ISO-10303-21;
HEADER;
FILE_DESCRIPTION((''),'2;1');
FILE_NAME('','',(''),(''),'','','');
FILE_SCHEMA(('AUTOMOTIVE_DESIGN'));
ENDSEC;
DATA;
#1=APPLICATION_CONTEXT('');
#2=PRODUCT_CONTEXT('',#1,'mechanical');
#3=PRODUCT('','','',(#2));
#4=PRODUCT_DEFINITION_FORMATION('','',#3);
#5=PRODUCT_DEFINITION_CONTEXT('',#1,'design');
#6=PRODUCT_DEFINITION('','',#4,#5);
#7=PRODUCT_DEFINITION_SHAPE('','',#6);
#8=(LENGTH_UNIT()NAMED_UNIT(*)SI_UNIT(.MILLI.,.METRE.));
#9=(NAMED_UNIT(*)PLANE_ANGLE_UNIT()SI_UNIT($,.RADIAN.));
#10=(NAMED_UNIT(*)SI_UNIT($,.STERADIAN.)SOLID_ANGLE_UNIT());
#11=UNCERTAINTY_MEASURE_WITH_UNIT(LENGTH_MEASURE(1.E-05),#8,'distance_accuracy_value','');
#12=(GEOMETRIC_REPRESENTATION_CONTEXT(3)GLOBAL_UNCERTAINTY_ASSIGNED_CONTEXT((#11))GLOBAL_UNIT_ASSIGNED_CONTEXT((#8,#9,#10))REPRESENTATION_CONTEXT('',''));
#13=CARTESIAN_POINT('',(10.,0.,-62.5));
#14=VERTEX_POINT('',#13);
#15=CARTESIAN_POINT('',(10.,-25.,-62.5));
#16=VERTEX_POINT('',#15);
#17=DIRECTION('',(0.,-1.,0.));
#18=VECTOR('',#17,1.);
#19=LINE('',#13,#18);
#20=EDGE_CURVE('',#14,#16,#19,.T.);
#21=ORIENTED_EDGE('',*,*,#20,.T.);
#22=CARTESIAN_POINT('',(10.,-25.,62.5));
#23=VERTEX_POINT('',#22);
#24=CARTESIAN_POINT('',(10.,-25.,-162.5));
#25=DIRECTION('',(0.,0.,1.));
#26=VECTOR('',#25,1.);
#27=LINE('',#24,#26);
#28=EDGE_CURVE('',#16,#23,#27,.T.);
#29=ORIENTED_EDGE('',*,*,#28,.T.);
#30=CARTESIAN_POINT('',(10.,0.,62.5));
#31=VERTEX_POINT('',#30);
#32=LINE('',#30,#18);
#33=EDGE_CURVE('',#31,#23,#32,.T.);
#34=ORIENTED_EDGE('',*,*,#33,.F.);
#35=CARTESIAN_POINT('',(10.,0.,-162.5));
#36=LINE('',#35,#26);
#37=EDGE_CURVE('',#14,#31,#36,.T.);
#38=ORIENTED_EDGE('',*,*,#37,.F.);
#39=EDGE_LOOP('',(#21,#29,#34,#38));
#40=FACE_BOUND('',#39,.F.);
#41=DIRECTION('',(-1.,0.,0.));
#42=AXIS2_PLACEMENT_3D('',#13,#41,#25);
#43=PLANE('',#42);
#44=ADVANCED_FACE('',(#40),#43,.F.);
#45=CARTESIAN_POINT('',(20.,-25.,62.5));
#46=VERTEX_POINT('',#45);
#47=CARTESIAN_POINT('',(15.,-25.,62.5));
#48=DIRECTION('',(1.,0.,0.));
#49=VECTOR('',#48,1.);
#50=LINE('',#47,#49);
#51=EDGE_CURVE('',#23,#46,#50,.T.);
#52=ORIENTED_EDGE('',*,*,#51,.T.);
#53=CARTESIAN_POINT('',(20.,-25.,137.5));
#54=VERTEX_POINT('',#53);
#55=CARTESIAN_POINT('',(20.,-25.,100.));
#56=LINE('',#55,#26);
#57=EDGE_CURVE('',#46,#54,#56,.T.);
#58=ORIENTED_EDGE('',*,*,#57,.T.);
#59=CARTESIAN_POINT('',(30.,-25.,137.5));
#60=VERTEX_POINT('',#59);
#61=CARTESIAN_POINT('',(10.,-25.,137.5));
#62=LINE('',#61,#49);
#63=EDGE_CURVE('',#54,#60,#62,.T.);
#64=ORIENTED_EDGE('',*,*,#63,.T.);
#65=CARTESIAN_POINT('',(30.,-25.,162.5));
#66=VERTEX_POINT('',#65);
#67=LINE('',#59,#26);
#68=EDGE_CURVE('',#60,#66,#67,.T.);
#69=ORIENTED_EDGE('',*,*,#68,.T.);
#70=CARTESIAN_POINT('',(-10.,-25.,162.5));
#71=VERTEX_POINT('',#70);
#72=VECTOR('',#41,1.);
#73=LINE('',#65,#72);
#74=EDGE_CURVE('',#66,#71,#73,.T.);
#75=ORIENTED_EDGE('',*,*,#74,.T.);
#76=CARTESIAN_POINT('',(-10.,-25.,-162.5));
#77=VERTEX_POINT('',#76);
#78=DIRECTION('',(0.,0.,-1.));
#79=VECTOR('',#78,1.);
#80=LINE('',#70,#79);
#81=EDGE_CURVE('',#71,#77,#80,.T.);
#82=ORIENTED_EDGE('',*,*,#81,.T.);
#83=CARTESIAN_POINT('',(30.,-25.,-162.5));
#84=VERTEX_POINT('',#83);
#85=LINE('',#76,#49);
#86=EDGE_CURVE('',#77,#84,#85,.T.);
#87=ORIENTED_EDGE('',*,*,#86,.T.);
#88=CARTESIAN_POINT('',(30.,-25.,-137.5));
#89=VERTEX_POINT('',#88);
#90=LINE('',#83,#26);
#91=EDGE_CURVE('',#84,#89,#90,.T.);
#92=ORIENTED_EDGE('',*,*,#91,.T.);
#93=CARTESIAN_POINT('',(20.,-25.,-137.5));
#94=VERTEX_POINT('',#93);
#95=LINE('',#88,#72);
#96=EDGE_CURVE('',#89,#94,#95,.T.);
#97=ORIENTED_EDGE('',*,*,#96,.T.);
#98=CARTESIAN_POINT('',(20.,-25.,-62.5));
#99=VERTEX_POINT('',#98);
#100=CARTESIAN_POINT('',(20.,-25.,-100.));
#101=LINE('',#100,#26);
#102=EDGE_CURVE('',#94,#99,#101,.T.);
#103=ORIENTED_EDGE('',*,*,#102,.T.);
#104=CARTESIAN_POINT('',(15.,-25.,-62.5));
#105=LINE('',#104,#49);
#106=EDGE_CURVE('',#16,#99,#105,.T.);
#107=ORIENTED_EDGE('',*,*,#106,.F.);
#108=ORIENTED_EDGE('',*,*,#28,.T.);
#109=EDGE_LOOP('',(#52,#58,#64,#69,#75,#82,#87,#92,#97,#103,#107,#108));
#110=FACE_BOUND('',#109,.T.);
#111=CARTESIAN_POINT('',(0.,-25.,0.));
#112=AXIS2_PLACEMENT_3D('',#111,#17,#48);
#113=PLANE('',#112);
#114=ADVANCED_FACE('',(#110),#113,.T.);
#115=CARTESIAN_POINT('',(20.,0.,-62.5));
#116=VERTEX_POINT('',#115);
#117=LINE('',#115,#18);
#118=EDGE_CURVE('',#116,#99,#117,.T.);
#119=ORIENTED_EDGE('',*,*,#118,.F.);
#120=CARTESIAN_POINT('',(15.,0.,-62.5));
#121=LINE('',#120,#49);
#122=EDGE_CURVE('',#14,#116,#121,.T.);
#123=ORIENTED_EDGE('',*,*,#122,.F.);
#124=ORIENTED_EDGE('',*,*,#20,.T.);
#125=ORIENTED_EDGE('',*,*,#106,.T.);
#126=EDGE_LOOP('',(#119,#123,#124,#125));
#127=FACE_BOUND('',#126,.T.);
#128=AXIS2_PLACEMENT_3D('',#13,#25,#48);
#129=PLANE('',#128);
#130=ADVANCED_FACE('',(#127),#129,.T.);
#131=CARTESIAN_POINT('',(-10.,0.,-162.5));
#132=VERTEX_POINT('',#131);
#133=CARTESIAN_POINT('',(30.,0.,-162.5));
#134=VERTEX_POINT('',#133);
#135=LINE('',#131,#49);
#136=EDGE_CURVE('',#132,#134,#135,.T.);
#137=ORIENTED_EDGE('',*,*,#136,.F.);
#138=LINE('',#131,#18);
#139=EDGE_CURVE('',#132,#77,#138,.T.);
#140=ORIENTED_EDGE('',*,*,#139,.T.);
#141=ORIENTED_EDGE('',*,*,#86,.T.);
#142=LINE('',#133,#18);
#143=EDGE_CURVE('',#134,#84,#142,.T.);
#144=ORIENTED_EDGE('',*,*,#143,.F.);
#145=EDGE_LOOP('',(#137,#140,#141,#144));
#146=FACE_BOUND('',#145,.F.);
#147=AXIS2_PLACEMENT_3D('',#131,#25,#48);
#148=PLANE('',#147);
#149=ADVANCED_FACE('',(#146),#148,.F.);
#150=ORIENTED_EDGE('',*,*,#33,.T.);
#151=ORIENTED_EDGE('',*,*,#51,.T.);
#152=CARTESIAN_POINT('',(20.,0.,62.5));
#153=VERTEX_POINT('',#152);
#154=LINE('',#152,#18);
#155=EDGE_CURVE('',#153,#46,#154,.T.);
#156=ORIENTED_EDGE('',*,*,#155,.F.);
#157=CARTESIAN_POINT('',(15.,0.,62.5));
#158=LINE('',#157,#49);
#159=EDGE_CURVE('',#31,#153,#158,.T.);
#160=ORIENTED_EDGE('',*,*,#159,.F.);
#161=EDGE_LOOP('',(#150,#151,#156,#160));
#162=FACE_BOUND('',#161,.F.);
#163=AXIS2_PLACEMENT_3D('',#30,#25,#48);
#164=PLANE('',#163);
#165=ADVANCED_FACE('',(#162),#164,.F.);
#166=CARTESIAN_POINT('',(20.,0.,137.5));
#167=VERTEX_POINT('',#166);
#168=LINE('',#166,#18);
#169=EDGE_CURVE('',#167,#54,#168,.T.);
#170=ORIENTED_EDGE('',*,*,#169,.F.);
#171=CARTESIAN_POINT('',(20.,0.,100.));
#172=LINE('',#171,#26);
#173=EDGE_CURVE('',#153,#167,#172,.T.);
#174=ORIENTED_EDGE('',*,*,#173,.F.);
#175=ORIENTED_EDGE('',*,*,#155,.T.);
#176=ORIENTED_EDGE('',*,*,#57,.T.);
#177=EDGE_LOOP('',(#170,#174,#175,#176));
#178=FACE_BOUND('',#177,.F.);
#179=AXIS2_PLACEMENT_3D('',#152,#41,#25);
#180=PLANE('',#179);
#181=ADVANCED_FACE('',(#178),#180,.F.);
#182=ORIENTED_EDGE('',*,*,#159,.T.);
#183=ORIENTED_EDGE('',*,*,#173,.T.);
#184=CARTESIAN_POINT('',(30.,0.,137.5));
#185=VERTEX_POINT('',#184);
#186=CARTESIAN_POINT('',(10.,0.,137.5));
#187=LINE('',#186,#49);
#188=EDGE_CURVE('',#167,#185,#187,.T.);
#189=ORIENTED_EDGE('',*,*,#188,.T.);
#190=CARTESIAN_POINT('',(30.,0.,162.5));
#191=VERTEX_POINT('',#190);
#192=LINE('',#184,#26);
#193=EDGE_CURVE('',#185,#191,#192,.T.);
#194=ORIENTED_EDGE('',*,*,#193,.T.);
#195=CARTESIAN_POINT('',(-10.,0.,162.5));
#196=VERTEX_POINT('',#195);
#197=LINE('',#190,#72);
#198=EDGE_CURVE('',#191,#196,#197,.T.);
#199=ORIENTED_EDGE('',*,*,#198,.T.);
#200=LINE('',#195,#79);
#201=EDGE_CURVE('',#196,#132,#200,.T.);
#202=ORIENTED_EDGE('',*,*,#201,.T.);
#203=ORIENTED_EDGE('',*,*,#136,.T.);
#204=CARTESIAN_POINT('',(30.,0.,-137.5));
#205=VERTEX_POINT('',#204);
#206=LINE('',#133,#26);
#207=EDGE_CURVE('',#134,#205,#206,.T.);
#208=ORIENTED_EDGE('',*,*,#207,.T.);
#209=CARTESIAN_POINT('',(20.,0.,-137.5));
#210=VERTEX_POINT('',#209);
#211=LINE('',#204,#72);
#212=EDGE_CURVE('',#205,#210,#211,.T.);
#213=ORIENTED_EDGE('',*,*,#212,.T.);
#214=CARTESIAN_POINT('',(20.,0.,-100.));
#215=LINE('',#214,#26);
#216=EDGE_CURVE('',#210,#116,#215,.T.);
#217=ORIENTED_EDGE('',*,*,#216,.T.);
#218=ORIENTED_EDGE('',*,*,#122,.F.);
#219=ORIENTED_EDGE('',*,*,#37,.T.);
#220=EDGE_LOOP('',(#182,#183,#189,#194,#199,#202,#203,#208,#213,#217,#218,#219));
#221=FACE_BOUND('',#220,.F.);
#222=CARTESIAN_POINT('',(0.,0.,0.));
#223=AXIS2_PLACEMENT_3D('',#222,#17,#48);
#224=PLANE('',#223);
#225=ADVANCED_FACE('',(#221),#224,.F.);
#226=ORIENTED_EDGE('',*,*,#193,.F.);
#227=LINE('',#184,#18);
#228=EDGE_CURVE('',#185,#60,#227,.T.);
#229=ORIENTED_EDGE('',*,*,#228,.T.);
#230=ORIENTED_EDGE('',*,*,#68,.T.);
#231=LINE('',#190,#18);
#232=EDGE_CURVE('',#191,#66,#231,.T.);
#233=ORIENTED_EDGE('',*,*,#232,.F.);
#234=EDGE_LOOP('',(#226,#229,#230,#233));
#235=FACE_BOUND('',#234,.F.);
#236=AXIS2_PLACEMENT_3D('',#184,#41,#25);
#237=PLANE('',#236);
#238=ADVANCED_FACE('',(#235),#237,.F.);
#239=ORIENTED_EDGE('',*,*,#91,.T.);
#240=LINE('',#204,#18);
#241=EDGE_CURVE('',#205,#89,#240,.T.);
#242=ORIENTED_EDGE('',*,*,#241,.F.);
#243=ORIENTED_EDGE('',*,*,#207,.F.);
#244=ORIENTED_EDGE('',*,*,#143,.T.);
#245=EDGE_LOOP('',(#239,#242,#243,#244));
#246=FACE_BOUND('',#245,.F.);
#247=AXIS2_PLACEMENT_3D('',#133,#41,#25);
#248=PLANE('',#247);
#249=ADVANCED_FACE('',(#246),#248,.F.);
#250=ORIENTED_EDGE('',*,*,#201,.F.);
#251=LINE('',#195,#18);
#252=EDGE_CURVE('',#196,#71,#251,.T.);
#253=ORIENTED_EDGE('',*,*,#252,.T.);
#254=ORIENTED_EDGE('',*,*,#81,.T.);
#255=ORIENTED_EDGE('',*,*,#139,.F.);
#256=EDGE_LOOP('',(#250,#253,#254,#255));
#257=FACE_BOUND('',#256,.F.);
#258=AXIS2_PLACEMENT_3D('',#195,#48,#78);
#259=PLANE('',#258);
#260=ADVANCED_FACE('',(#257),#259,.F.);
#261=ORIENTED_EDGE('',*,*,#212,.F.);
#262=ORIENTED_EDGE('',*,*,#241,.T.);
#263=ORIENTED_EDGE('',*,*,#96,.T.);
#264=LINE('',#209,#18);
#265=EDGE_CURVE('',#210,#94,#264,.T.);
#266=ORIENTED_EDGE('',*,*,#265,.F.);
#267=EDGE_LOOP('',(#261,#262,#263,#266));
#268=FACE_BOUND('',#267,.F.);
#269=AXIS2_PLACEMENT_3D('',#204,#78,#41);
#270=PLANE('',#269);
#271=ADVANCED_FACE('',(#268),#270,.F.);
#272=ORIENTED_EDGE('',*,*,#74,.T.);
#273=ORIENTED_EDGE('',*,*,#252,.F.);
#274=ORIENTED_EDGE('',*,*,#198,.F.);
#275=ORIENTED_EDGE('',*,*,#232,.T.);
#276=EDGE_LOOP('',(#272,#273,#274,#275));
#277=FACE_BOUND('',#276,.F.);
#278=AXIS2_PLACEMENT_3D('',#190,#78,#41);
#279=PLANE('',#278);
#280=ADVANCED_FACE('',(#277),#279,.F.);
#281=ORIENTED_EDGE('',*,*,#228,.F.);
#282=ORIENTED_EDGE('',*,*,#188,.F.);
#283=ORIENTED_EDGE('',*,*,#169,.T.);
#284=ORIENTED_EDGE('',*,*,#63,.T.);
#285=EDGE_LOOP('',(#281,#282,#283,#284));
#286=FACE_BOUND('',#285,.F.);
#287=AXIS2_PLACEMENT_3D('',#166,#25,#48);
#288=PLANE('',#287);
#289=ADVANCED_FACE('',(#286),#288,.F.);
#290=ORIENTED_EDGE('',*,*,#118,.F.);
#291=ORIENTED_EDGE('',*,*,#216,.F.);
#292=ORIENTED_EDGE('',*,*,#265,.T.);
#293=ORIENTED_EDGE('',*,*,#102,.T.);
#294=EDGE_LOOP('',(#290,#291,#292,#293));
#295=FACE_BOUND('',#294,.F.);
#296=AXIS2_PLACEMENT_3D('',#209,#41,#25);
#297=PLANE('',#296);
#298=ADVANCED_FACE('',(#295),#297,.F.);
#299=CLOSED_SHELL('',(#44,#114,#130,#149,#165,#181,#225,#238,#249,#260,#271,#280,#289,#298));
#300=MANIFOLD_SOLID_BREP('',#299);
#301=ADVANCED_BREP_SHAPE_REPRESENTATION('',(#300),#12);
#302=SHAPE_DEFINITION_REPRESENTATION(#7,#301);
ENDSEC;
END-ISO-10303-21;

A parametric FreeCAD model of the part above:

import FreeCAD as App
import Part
import Sketcher
from FreeCAD import Vector
Q = App.Units.Quantity


def add_polygon(sketch, points):
    """Adds a closed chain of lines whose ends are joined by coincident constraints."""
    first, n = sketch.GeometryCount, len(points)
    for a, b in zip(points, points[1:] + points[:1]):
        sketch.addGeometry(Part.LineSegment(App.Vector(*a, 0), App.Vector(*b, 0)), False)
    for i in range(n):
        sketch.addConstraint(Sketcher.Constraint("Coincident", first + i, 2, first + (i + 1) % n, 1))

doc = App.newDocument("Part")
body = doc.addObject("PartDesign::Body", "Body")

# Sketch on XZ plane
sketch1 = doc.addObject("Sketcher::SketchObject", "Sketch")
body.addObject(sketch1)
sketch1.AttachmentSupport = (doc.XZ_Plane, [""])
sketch1.MapMode = "FlatFace"
add_polygon(sketch1, [(-10, 162), (-10, -162), (30, -162), (30, -138), (20, -138), (20, -62), (10, -62), (10, 62), (20, 62), (20, 138), (30, 138), (30, 162)])  # lines 0-11
sketch1.addConstraint([
    Sketcher.Constraint("Vertical", 0),
    Sketcher.Constraint("Horizontal", 1),
    Sketcher.Constraint("Vertical", 2),
    Sketcher.Constraint("Horizontal", 3),
    Sketcher.Constraint("Vertical", 4),
    Sketcher.Constraint("Horizontal", 5),
    Sketcher.Constraint("Vertical", 6),
    Sketcher.Constraint("Horizontal", 7),
    Sketcher.Constraint("Vertical", 8),
    Sketcher.Constraint("Horizontal", 9),
    Sketcher.Constraint("Vertical", 10),
    Sketcher.Constraint("Horizontal", 11),
    Sketcher.Constraint("Symmetric", 4, 2, 7, 2, -1),
    Sketcher.Constraint("Symmetric", 2, 2, 9, 2, -1),
    Sketcher.Constraint("Equal", 3, 5),
    Sketcher.Constraint("Equal", 2, 10),
    Sketcher.Constraint("DistanceX", 1, 1, 1, 2, Q("40 mm")),
    Sketcher.Constraint("DistanceX", 3, 2, 3, 1, Q("10 mm")),
    Sketcher.Constraint("DistanceY", 0, 2, 0, 1, Q("325 mm")),
    Sketcher.Constraint("DistanceY", 2, 1, 2, 2, Q("25 mm")),
    Sketcher.Constraint("DistanceY", 4, 1, 4, 2, Q("75 mm")),
    Sketcher.Constraint("DistanceX", 0, 2, -1, 1, Q("10 mm")),
])
pad1 = doc.addObject("PartDesign::Pad", "Pad")
body.addObject(pad1)
pad1.Profile = sketch1
pad1.Length = 25

doc.recompute()
